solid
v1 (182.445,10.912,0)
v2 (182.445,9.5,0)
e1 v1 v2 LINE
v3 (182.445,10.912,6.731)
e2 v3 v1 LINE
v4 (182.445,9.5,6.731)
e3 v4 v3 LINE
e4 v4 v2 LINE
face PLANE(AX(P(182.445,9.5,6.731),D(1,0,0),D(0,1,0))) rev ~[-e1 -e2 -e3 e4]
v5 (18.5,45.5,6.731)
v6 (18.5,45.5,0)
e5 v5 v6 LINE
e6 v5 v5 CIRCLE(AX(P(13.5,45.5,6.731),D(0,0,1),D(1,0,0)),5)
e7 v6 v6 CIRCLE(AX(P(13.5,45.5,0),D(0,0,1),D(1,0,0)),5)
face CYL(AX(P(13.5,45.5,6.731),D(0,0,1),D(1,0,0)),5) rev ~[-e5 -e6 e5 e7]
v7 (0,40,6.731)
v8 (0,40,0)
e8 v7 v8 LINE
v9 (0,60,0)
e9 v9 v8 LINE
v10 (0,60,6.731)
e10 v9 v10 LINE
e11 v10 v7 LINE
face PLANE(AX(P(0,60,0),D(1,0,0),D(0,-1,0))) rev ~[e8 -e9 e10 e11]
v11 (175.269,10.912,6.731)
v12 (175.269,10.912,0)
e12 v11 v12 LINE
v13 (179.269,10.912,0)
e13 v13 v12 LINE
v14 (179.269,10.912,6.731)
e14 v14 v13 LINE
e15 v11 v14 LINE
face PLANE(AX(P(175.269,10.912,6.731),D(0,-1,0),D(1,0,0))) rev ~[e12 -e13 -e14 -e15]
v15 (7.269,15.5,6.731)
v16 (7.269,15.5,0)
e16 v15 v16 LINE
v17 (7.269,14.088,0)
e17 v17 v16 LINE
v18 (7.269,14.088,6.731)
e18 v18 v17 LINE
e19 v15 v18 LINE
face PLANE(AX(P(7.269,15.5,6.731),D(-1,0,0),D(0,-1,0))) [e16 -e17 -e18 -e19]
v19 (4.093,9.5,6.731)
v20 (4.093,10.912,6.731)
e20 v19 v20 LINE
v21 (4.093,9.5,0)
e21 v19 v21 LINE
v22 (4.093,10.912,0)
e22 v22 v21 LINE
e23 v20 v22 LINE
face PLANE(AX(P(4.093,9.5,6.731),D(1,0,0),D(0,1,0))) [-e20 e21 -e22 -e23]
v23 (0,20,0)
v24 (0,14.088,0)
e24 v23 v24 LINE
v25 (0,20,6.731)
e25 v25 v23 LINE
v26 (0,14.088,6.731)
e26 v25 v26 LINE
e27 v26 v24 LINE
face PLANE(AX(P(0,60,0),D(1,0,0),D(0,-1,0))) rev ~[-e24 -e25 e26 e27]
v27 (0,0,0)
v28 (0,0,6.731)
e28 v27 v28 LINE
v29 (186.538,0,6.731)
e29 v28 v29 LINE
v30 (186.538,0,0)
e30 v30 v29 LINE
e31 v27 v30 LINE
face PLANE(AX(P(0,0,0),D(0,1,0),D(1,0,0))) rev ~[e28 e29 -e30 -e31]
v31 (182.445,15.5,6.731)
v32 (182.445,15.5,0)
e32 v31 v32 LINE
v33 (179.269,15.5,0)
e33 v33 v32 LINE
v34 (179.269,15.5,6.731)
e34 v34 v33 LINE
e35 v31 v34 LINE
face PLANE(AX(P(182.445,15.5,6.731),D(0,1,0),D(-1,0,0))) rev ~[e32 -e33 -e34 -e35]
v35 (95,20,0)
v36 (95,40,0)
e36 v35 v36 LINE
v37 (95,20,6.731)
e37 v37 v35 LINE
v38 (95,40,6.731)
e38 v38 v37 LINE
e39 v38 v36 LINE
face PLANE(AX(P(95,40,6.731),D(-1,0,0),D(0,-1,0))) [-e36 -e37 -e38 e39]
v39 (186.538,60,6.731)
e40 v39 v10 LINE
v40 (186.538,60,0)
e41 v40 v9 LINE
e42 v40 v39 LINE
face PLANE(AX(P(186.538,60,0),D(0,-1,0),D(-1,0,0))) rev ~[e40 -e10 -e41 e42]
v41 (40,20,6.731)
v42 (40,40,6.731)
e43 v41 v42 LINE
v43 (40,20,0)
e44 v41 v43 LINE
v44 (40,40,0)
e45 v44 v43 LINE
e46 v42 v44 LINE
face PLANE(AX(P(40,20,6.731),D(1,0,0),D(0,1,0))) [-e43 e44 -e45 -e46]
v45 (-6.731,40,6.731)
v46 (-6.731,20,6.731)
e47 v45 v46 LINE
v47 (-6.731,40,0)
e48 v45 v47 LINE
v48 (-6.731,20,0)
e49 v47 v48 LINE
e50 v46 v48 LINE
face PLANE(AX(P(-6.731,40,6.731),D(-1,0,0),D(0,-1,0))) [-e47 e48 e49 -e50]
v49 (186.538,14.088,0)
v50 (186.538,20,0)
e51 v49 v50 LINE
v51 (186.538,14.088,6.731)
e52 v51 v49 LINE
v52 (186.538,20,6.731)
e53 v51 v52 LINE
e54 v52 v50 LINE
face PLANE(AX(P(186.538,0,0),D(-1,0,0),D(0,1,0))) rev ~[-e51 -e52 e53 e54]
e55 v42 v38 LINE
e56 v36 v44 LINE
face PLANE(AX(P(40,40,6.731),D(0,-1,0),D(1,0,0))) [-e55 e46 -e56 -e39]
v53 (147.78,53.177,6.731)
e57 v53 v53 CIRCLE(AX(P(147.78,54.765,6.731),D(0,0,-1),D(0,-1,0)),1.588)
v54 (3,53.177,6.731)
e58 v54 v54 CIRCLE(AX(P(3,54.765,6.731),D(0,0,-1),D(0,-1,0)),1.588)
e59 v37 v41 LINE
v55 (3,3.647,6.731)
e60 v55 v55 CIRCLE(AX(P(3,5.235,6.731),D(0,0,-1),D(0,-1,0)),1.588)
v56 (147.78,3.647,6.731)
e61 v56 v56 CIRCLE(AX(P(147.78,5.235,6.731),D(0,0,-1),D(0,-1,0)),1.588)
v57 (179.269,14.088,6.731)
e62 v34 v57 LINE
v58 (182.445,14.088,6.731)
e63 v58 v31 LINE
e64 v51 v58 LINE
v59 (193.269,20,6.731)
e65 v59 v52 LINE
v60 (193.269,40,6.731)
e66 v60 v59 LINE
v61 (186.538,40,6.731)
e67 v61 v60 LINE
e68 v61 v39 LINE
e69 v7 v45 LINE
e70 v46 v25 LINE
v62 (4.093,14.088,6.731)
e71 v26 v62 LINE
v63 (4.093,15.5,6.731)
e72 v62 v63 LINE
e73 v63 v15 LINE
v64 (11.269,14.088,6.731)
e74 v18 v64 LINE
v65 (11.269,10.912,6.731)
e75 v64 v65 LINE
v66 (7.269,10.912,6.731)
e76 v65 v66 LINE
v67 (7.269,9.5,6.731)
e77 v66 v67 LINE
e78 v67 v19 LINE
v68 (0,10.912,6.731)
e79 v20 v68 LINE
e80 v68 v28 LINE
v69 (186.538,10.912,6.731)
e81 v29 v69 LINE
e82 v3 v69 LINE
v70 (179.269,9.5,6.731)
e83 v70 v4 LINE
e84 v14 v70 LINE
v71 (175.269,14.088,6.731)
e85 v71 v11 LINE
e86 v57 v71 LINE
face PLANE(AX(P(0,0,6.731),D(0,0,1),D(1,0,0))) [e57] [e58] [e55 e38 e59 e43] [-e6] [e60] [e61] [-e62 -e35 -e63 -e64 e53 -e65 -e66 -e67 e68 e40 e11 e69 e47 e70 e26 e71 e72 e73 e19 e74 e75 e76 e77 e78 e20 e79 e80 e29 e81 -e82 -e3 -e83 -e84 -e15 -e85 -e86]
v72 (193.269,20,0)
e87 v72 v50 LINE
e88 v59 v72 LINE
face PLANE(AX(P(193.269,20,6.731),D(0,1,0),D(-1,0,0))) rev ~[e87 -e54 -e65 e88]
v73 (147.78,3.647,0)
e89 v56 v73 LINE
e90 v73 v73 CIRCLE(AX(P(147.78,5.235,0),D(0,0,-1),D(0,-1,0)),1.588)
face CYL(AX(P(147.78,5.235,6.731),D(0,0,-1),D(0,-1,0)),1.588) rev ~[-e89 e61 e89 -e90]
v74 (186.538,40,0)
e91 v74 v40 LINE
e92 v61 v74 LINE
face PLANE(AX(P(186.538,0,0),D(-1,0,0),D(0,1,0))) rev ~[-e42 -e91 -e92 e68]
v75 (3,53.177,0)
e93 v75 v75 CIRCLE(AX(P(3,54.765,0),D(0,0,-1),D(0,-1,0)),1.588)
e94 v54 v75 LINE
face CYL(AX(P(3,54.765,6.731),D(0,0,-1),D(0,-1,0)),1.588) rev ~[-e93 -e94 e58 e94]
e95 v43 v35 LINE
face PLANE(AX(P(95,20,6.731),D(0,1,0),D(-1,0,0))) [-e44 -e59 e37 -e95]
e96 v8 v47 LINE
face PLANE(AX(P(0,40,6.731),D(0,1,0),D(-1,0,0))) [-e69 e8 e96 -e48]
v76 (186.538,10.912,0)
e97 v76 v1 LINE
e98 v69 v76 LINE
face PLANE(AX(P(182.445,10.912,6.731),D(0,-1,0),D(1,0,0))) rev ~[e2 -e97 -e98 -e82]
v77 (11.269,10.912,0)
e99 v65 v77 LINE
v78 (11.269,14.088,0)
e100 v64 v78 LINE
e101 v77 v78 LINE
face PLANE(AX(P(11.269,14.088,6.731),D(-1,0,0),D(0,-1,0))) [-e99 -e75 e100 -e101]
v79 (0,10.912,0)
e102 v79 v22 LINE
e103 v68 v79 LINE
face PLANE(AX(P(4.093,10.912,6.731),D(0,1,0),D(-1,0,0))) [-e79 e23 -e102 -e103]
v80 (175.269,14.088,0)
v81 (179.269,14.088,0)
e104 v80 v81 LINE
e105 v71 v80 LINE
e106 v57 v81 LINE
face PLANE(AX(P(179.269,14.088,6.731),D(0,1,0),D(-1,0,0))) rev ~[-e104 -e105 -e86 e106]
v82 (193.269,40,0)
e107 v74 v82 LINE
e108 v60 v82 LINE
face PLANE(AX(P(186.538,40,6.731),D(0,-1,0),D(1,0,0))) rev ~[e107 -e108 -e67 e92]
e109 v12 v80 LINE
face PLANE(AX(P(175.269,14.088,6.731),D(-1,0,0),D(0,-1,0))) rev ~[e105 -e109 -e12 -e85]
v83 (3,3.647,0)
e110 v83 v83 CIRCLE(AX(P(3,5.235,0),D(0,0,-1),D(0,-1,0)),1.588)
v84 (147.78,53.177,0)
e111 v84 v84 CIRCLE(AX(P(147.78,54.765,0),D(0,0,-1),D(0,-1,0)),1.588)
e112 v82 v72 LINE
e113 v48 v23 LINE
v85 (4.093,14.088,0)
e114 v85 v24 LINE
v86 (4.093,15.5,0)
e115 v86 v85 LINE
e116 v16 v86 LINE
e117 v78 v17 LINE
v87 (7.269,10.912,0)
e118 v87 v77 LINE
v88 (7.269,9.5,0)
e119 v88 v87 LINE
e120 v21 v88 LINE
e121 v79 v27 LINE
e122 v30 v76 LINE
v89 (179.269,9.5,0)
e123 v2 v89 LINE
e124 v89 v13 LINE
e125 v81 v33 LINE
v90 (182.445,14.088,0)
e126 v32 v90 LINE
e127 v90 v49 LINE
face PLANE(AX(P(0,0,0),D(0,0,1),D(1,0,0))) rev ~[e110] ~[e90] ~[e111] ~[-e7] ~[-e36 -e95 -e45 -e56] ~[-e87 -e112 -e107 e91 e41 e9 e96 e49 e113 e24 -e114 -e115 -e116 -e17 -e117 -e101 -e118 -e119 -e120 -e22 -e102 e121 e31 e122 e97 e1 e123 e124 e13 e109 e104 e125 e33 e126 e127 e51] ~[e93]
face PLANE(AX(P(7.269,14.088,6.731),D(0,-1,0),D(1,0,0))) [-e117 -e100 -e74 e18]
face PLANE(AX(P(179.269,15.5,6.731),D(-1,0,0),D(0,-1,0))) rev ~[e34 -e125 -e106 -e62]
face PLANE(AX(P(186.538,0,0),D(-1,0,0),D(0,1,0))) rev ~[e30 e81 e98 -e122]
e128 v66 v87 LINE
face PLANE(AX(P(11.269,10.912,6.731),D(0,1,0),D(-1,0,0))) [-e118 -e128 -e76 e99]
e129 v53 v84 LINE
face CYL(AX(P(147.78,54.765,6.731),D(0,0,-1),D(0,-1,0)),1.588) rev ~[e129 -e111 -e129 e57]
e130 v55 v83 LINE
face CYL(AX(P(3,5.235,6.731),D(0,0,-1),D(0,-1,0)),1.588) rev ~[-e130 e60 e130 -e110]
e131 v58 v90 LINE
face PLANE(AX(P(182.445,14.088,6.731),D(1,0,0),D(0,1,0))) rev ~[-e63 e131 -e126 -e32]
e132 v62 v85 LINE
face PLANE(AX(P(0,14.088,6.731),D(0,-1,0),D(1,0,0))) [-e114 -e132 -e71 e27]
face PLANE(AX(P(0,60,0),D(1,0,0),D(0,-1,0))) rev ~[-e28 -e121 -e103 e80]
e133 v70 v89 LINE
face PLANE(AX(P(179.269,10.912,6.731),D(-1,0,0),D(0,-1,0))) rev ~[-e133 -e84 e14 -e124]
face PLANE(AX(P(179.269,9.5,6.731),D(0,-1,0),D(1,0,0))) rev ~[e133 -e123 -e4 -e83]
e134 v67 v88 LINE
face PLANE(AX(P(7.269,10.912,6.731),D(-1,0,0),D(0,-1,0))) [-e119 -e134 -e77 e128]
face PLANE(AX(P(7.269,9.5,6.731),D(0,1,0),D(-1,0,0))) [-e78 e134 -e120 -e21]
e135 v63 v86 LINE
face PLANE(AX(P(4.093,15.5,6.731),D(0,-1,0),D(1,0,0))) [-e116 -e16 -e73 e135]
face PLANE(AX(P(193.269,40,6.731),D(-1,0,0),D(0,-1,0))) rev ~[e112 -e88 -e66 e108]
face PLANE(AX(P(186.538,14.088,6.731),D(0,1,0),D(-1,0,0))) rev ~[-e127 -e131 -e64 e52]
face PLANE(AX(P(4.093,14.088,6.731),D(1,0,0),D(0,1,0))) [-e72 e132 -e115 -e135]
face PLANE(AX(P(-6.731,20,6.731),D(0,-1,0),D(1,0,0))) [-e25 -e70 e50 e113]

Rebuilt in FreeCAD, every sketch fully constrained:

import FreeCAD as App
import Part
import Sketcher
Q = App.Units.Quantity

doc = App.newDocument("Part")
body = doc.addObject("PartDesign::Body", "Body")

sketch1 = body.newObject("Sketcher::SketchObject", "Sketch")
sketch1.AttachmentSupport = (doc.getObject("XY_Plane"), [""])
sketch1.MapMode = "FlatFace"
sketch1.addGeometry([
    Part.LineSegment(App.Vector(0, 60, 0), App.Vector(0, 0, 0)),
    Part.LineSegment(App.Vector(0, 0, 0), App.Vector(186.538, 0, 0)),
    Part.LineSegment(App.Vector(186.538, 0, 0), App.Vector(186.538, 60, 0)),
    Part.LineSegment(App.Vector(186.538, 60, 0), App.Vector(0, 60, 0)),
], False)
sketch1.addConstraint([
    Sketcher.Constraint("Coincident", 0, 2, 1, 1),
    Sketcher.Constraint("Coincident", 1, 2, 2, 1),
    Sketcher.Constraint("Coincident", 2, 2, 3, 1),
    Sketcher.Constraint("Coincident", 3, 2, 0, 1),
    Sketcher.Constraint("Vertical", 0),
    Sketcher.Constraint("Horizontal", 1),
    Sketcher.Constraint("Vertical", 2),
    Sketcher.Constraint("Horizontal", 3),
    Sketcher.Constraint("Coincident", 0, 2, -1, 1),
    Sketcher.Constraint("DistanceY", 0, 2, 0, 1, Q("60 mm")),
    Sketcher.Constraint("DistanceX", 1, 1, 1, 2, Q("186.538 mm")),
])
pad1 = body.newObject("PartDesign::Pad", "Pad")
pad1.Profile = sketch1
pad1.Length = 6.731

sketch2 = body.newObject("Sketcher::SketchObject", "Sketch001")
sketch2.AttachmentSupport = (doc.getObject("XY_Plane"), [""])
sketch2.MapMode = "FlatFace"
sketch2.AttachmentOffset = App.Placement(App.Vector(0, 0, 6.731), App.Rotation())
sketch2.addGeometry([
    Part.LineSegment(App.Vector(186.538, 40, 0), App.Vector(186.538, 20, 0)),
    Part.LineSegment(App.Vector(186.538, 20, 0), App.Vector(193.269, 20, 0)),
    Part.LineSegment(App.Vector(193.269, 20, 0), App.Vector(193.269, 40, 0)),
    Part.LineSegment(App.Vector(193.269, 40, 0), App.Vector(186.538, 40, 0)),
    Part.LineSegment(App.Vector(0, 20, 0), App.Vector(0, 40, 0)),
    Part.LineSegment(App.Vector(0, 40, 0), App.Vector(-6.731, 40, 0)),
    Part.LineSegment(App.Vector(-6.731, 40, 0), App.Vector(-6.731, 20, 0)),
    Part.LineSegment(App.Vector(-6.731, 20, 0), App.Vector(0, 20, 0)),
], False)
sketch2.addConstraint([
    Sketcher.Constraint("Coincident", 0, 2, 1, 1),
    Sketcher.Constraint("Coincident", 1, 2, 2, 1),
    Sketcher.Constraint("Coincident", 2, 2, 3, 1),
    Sketcher.Constraint("Coincident", 3, 2, 0, 1),
    Sketcher.Constraint("Coincident", 4, 2, 5, 1),
    Sketcher.Constraint("Coincident", 5, 2, 6, 1),
    Sketcher.Constraint("Coincident", 6, 2, 7, 1),
    Sketcher.Constraint("Coincident", 7, 2, 4, 1),
    Sketcher.Constraint("Vertical", 0),
    Sketcher.Constraint("Horizontal", 1),
    Sketcher.Constraint("Vertical", 2),
    Sketcher.Constraint("Horizontal", 3),
    Sketcher.Constraint("Vertical", 4),
    Sketcher.Constraint("Horizontal", 5),
    Sketcher.Constraint("Vertical", 6),
    Sketcher.Constraint("Horizontal", 7),
    Sketcher.Constraint("PointOnObject", 4, 2, -2),
    Sketcher.Constraint("Horizontal", 3, 2, 4, 2),
    Sketcher.Constraint("Horizontal", 1, 2, 6, 2),
    Sketcher.Constraint("Equal", 3, 5),
    Sketcher.Constraint("DistanceY", 0, 2, 0, 1, Q("20 mm")),
    Sketcher.Constraint("DistanceY", -1, 1, 0, 2, Q("20 mm")),
    Sketcher.Constraint("DistanceX", 1, 1, 1, 2, Q("6.731 mm")),
    Sketcher.Constraint("DistanceX", 5, 2, 2, 2, Q("200 mm")),
])
pad2 = body.newObject("PartDesign::Pad", "Pad001")
pad2.Profile = sketch2
pad2.Length = 6.731
pad2.Reversed = True

sketch3 = body.newObject("Sketcher::SketchObject", "Sketch002")
sketch3.AttachmentSupport = (doc.getObject("XY_Plane"), [""])
sketch3.MapMode = "FlatFace"
sketch3.AttachmentOffset = App.Placement(App.Vector(0, 0, 6.731), App.Rotation())
sketch3.addGeometry([
    Part.LineSegment(App.Vector(95, 40, 0), App.Vector(40, 40, 0)),
    Part.LineSegment(App.Vector(40, 40, 0), App.Vector(40, 20, 0)),
    Part.LineSegment(App.Vector(40, 20, 0), App.Vector(95, 20, 0)),
    Part.LineSegment(App.Vector(95, 20, 0), App.Vector(95, 40, 0)),
], False)
sketch3.addConstraint([
    Sketcher.Constraint("Coincident", 0, 2, 1, 1),
    Sketcher.Constraint("Coincident", 1, 2, 2, 1),
    Sketcher.Constraint("Coincident", 2, 2, 3, 1),
    Sketcher.Constraint("Coincident", 3, 2, 0, 1),
    Sketcher.Constraint("Horizontal", 0),
    Sketcher.Constraint("Vertical", 1),
    Sketcher.Constraint("Horizontal", 2),
    Sketcher.Constraint("Vertical", 3),
    Sketcher.Constraint("DistanceX", 0, 2, 0, 1, Q("55 mm")),
    Sketcher.Constraint("DistanceY", 1, 2, 1, 1, Q("20 mm")),
    Sketcher.Constraint("DistanceX", -1, 1, 0, 2, Q("40 mm")),
    Sketcher.Constraint("DistanceY", -1, 1, 0, 2, Q("40 mm")),
])
pocket1 = body.newObject("PartDesign::Pocket", "Pocket")
pocket1.Profile = sketch3
pocket1.Type = "UpToFirst"

sketch4 = body.newObject("Sketcher::SketchObject", "Sketch003")
sketch4.AttachmentSupport = (doc.getObject("XY_Plane"), [""])
sketch4.MapMode = "FlatFace"
sketch4.AttachmentOffset = App.Placement(App.Vector(0, 0, 6.731), App.Rotation())
sketch4.addGeometry([
    Part.Circle(App.Vector(3, 54.765, 0), App.Vector(0, 0, 1), 1.588),
    Part.Circle(App.Vector(147.78, 54.765, 0), App.Vector(0, 0, 1), 1.588),
    Part.Circle(App.Vector(147.78, 5.235, 0), App.Vector(0, 0, 1), 1.588),
    Part.Circle(App.Vector(3, 5.235, 0), App.Vector(0, 0, 1), 1.588),
], False)
sketch4.addConstraint([
    Sketcher.Constraint("Equal", 0, 1),
    Sketcher.Constraint("Equal", 1, 2),
    Sketcher.Constraint("Equal", 2, 3),
    Sketcher.Constraint("Horizontal", 0, 3, 1, 3),
    Sketcher.Constraint("Horizontal", 2, 3, 3, 3),
    Sketcher.Constraint("Vertical", 1, 3, 2, 3),
    Sketcher.Constraint("Vertical", 0, 3, 3, 3),
    Sketcher.Constraint("Diameter", 0, Q("3.176 mm")),
    Sketcher.Constraint("DistanceX", -1, 1, 0, 3, Q("3 mm")),
    Sketcher.Constraint("DistanceX", -1, 1, 1, 3, Q("147.78 mm")),
    Sketcher.Constraint("DistanceY", 2, 3, 1, 3, Q("49.53 mm")),
    Sketcher.Constraint("DistanceY", -1, 1, 0, 3, Q("54.765 mm")),
])
doc.recompute()
hole = body.newObject("PartDesign::Hole", "Hole")
hole.Profile = sketch4
hole.ThreadType = "None"
hole.Diameter = 3.176
hole.DepthType = "ThroughAll"

sketch5 = body.newObject("Sketcher::SketchObject", "Sketch004")
sketch5.AttachmentSupport = (doc.getObject("XY_Plane"), [""])
sketch5.MapMode = "FlatFace"
sketch5.AttachmentOffset = App.Placement(App.Vector(0, 0, 6.731), App.Rotation())
sketch5.addGeometry(Part.Circle(App.Vector(13.5, 45.5, 0), App.Vector(0, 0, 1), 5), False)
sketch5.addConstraint([
    Sketcher.Constraint("Diameter", 0, Q("10 mm")),
    Sketcher.Constraint("DistanceX", -1, 1, 0, 3, Q("13.5 mm")),
    Sketcher.Constraint("DistanceY", -1, 1, 0, 3, Q("45.5 mm")),
])
pocket2 = body.newObject("PartDesign::Pocket", "Pocket001")
pocket2.Profile = sketch5
pocket2.Type = "UpToFirst"

sketch6 = body.newObject("Sketcher::SketchObject", "Sketch005")
sketch6.AttachmentSupport = (doc.getObject("XY_Plane"), [""])
sketch6.MapMode = "FlatFace"
sketch6.AttachmentOffset = App.Placement(App.Vector(0, 0, 6.731), App.Rotation())
sketch6.addGeometry([
    Part.LineSegment(App.Vector(4.093, 14.088, 0), App.Vector(0, 14.088, 0)),
    Part.LineSegment(App.Vector(0, 14.088, 0), App.Vector(0, 10.912, 0)),
    Part.LineSegment(App.Vector(0, 10.912, 0), App.Vector(4.093, 10.912, 0)),
    Part.LineSegment(App.Vector(4.093, 10.912, 0), App.Vector(4.093, 9.5, 0)),
    Part.LineSegment(App.Vector(4.093, 9.5, 0), App.Vector(7.269, 9.5, 0)),
    Part.LineSegment(App.Vector(7.269, 9.5, 0), App.Vector(7.269, 10.912, 0)),
    Part.LineSegment(App.Vector(7.269, 10.912, 0), App.Vector(11.269, 10.912, 0)),
    Part.LineSegment(App.Vector(11.269, 10.912, 0), App.Vector(11.269, 14.088, 0)),
    Part.LineSegment(App.Vector(11.269, 14.088, 0), App.Vector(7.269, 14.088, 0)),
    Part.LineSegment(App.Vector(7.269, 14.088, 0), App.Vector(7.269, 15.5, 0)),
    Part.LineSegment(App.Vector(7.269, 15.5, 0), App.Vector(4.093, 15.5, 0)),
    Part.LineSegment(App.Vector(4.093, 15.5, 0), App.Vector(4.093, 14.088, 0)),
    Part.LineSegment(App.Vector(182.445, 10.912, 0), App.Vector(186.538, 10.912, 0)),
    Part.LineSegment(App.Vector(186.538, 10.912, 0), App.Vector(186.538, 14.088, 0)),
    Part.LineSegment(App.Vector(186.538, 14.088, 0), App.Vector(182.445, 14.088, 0)),
    Part.LineSegment(App.Vector(182.445, 14.088, 0), App.Vector(182.445, 15.5, 0)),
    Part.LineSegment(App.Vector(182.445, 15.5, 0), App.Vector(179.269, 15.5, 0)),
    Part.LineSegment(App.Vector(179.269, 15.5, 0), App.Vector(179.269, 14.088, 0)),
    Part.LineSegment(App.Vector(179.269, 14.088, 0), App.Vector(175.269, 14.088, 0)),
    Part.LineSegment(App.Vector(175.269, 14.088, 0), App.Vector(175.269, 10.912, 0)),
    Part.LineSegment(App.Vector(175.269, 10.912, 0), App.Vector(179.269, 10.912, 0)),
    Part.LineSegment(App.Vector(179.269, 10.912, 0), App.Vector(179.269, 9.5, 0)),
    Part.LineSegment(App.Vector(179.269, 9.5, 0), App.Vector(182.445, 9.5, 0)),
    Part.LineSegment(App.Vector(182.445, 9.5, 0), App.Vector(182.445, 10.912, 0)),
], False)
sketch6.addConstraint([
    Sketcher.Constraint("Coincident", 0, 2, 1, 1),
    Sketcher.Constraint("Coincident", 1, 2, 2, 1),
    Sketcher.Constraint("Coincident", 2, 2, 3, 1),
    Sketcher.Constraint("Coincident", 3, 2, 4, 1),
    Sketcher.Constraint("Coincident", 4, 2, 5, 1),
    Sketcher.Constraint("Coincident", 5, 2, 6, 1),
    Sketcher.Constraint("Coincident", 6, 2, 7, 1),
    Sketcher.Constraint("Coincident", 7, 2, 8, 1),
    Sketcher.Constraint("Coincident", 8, 2, 9, 1),
    Sketcher.Constraint("Coincident", 9, 2, 10, 1),
    Sketcher.Constraint("Coincident", 10, 2, 11, 1),
    Sketcher.Constraint("Coincident", 11, 2, 0, 1),
    Sketcher.Constraint("Coincident", 12, 2, 13, 1),
    Sketcher.Constraint("Coincident", 13, 2, 14, 1),
    Sketcher.Constraint("Coincident", 14, 2, 15, 1),
    Sketcher.Constraint("Coincident", 15, 2, 16, 1),
    Sketcher.Constraint("Coincident", 16, 2, 17, 1),
    Sketcher.Constraint("Coincident", 17, 2, 18, 1),
    Sketcher.Constraint("Coincident", 18, 2, 19, 1),
    Sketcher.Constraint("Coincident", 19, 2, 20, 1),
    Sketcher.Constraint("Coincident", 20, 2, 21, 1),
    Sketcher.Constraint("Coincident", 21, 2, 22, 1),
    Sketcher.Constraint("Coincident", 22, 2, 23, 1),
    Sketcher.Constraint("Coincident", 23, 2, 12, 1),
    Sketcher.Constraint("Horizontal", 0),
    Sketcher.Constraint("Vertical", 1),
    Sketcher.Constraint("Horizontal", 2),
    Sketcher.Constraint("Vertical", 3),
    Sketcher.Constraint("Horizontal", 4),
    Sketcher.Constraint("Vertical", 5),
    Sketcher.Constraint("Horizontal", 6),
    Sketcher.Constraint("Vertical", 7),
    Sketcher.Constraint("Horizontal", 8),
    Sketcher.Constraint("Vertical", 9),
    Sketcher.Constraint("Horizontal", 10),
    Sketcher.Constraint("Vertical", 11),
    Sketcher.Constraint("Horizontal", 12),
    Sketcher.Constraint("Vertical", 13),
    Sketcher.Constraint("Horizontal", 14),
    Sketcher.Constraint("Vertical", 15),
    Sketcher.Constraint("Horizontal", 16),
    Sketcher.Constraint("Vertical", 17),
    Sketcher.Constraint("Horizontal", 18),
    Sketcher.Constraint("Vertical", 19),
    Sketcher.Constraint("Horizontal", 20),
    Sketcher.Constraint("Vertical", 21),
    Sketcher.Constraint("Horizontal", 22),
    Sketcher.Constraint("Vertical", 23),
    Sketcher.Constraint("PointOnObject", 0, 2, -2),
    Sketcher.Constraint("Horizontal", 2, 2, 5, 2),
    Sketcher.Constraint("Horizontal", 0, 2, 7, 2),
    Sketcher.Constraint("Horizontal", 6, 2, 12, 2),
    Sketcher.Constraint("Horizontal", 11, 2, 13, 2),
    Sketcher.Constraint("Horizontal", 10, 2, 15, 2),
    Sketcher.Constraint("Horizontal", 14, 2, 17, 2),
    Sketcher.Constraint("Horizontal", 12, 2, 19, 2),
    Sketcher.Constraint("Horizontal", 4, 2, 21, 2),
    Sketcher.Constraint("Vertical", 5, 2, 8, 2),
    Sketcher.Constraint("Vertical", 3, 2, 10, 2),
    Sketcher.Constraint("Vertical", 17, 2, 20, 2),
    Sketcher.Constraint("Vertical", 15, 2, 22, 2),
    Sketcher.Constraint("Equal", 2, 12),
    Sketcher.Constraint("Equal", 10, 16),
    Sketcher.Constraint("Equal", 8, 18),
    Sketcher.Constraint("Equal", 22, 1),
    Sketcher.Constraint("Equal", 5, 9),
    Sketcher.Constraint("DistanceX", 6, 1, 6, 2, Q("4 mm")),
    Sketcher.Constraint("DistanceY", 4, 2, 9, 2, Q("6 mm")),
    Sketcher.Constraint("DistanceX", 4, 1, 4, 2, Q("3.176 mm")),
    Sketcher.Constraint("DistanceX", -1, 1, 6, 2, Q("11.269 mm")),
    Sketcher.Constraint("DistanceX", 7, 2, 16, 2, Q("168 mm")),
    Sketcher.Constraint("DistanceY", -1, 1, 3, 2, Q("9.5 mm")),
])
pocket3 = body.newObject("PartDesign::Pocket", "Pocket002")
pocket3.Profile = sketch6
pocket3.Length = 6.731

doc.recompute()
